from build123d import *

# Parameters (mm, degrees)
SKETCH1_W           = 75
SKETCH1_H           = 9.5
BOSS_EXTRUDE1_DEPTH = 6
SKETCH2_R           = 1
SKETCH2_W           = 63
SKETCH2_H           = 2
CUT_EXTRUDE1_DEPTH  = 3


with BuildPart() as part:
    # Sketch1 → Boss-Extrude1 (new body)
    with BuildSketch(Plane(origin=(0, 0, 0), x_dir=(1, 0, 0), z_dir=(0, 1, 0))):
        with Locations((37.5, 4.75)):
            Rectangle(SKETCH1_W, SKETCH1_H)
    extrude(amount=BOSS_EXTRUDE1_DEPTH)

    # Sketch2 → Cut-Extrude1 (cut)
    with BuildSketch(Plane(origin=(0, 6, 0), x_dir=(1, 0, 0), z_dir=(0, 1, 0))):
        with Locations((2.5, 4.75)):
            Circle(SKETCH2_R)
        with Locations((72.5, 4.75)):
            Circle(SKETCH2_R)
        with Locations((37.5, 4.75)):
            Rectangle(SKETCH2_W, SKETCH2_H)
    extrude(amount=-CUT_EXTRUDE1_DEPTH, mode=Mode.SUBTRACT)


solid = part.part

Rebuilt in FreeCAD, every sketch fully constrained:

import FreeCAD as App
import Part
import Sketcher
from FreeCAD import Vector
Q = App.Units.Quantity

doc = App.newDocument("Part")
body = doc.addObject("PartDesign::Body", "Body")

# Sketch on XZ plane
sketch1 = body.newObject("Sketcher::SketchObject", "Sketch")
sketch1.AttachmentSupport = (doc.getObject("XZ_Plane"), [""])
sketch1.MapMode = "FlatFace"
sketch1.addGeometry([
    Part.LineSegment(Vector(0, -10, 0), Vector(0, 0, 0)),
    Part.LineSegment(Vector(0, 0, 0), Vector(75, 0, 0)),
    Part.LineSegment(Vector(75, 0, 0), Vector(75, -10, 0)),
    Part.LineSegment(Vector(75, -10, 0), Vector(0, -10, 0)),
], False)
sketch1.addConstraint([
    Sketcher.Constraint("Coincident", 0, 2, 1, 1),
    Sketcher.Constraint("Coincident", 1, 2, 2, 1),
    Sketcher.Constraint("Coincident", 2, 2, 3, 1),
    Sketcher.Constraint("Coincident", 3, 2, 0, 1),
    Sketcher.Constraint("Vertical", 0),
    Sketcher.Constraint("Horizontal", 1),
    Sketcher.Constraint("Vertical", 2),
    Sketcher.Constraint("Horizontal", 3),
    Sketcher.Constraint("Coincident", 0, 2, -1, 1),
    Sketcher.Constraint("DistanceX", 1, 1, 1, 2, Q("75 mm")),
    Sketcher.Constraint("DistanceY", 0, 1, 0, 2, Q("9.5 mm")),
])
pad1 = body.newObject("PartDesign::Pad", "Pad")
pad1.Profile = sketch1
pad1.Length = 6
pad1.Reversed = True

# Sketch on XZ plane
sketch2 = body.newObject("Sketcher::SketchObject", "Sketch001")
sketch2.AttachmentSupport = (doc.getObject("XZ_Plane"), [""])
sketch2.MapMode = "FlatFace"
sketch2.AttachmentOffset = App.Placement(Vector(0, 0, -6), App.Rotation())
sketch2.addGeometry([
    Part.Circle(Vector(2.5, -4.8, 0), Vector(0, 0, 1), 1),  # 0
    Part.Circle(Vector(72.5, -4.8, 0), Vector(0, 0, 1), 1),  # 1
    Part.LineSegment(Vector(6, -5.8, 0), Vector(6, -3.8, 0)),  # 2
    Part.LineSegment(Vector(6, -3.8, 0), Vector(69, -3.8, 0)),  # 3
    Part.LineSegment(Vector(69, -3.8, 0), Vector(69, -5.8, 0)),  # 4
    Part.LineSegment(Vector(69, -5.8, 0), Vector(6, -5.8, 0)),  # 5
], False)
sketch2.addConstraint([
    Sketcher.Constraint("Coincident", 2, 2, 3, 1),
    Sketcher.Constraint("Coincident", 3, 2, 4, 1),
    Sketcher.Constraint("Coincident", 4, 2, 5, 1),
    Sketcher.Constraint("Coincident", 5, 2, 2, 1),
    Sketcher.Constraint("Vertical", 2),
    Sketcher.Constraint("Horizontal", 3),
    Sketcher.Constraint("Vertical", 4),
    Sketcher.Constraint("Horizontal", 5),
    Sketcher.Constraint("Equal", 0, 1),
    Sketcher.Constraint("Horizontal", 0, 3, 1, 3),
    Sketcher.Constraint("Diameter", 0, Q("2 mm")),
    Sketcher.Constraint("DistanceX", 3, 1, 3, 2, Q("63 mm")),
    Sketcher.Constraint("DistanceY", 2, 1, 2, 2, Q("2 mm")),
    Sketcher.Constraint("DistanceX", -1, 1, 2, 2, Q("6 mm")),
    Sketcher.Constraint("DistanceX", 0, 3, 1, 3, Q("70 mm")),
    Sketcher.Constraint("DistanceY", 0, 3, 2, 2, Q("1 mm")),
    Sketcher.Constraint("DistanceX", -1, 1, 0, 3, Q("2.5 mm")),
    Sketcher.Constraint("DistanceY", 0, 3, -1, 1, Q("4.75 mm")),
])
pocket1 = body.newObject("PartDesign::Pocket", "Pocket")
pocket1.Profile = sketch2
pocket1.Length = 3
pocket1.Reversed = True

doc.recompute()
